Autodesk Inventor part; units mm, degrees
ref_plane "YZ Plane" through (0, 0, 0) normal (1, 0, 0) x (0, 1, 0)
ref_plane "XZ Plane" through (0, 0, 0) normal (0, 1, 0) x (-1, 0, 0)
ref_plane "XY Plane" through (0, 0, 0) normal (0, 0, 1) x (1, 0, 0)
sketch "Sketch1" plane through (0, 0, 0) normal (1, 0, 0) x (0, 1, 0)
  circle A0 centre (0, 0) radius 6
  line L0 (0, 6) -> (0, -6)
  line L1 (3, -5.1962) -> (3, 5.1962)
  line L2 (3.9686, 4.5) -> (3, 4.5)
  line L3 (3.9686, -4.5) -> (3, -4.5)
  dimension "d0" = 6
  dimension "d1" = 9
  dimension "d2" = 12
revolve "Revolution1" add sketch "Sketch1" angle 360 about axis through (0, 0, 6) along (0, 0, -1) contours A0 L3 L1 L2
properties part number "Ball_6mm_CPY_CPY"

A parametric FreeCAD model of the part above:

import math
import FreeCAD as App
import Part
import Sketcher

V = App.Vector

doc = App.newDocument("Part")
params = doc.addObject("Spreadsheet::Sheet", "Params")
for row, (alias, value) in enumerate([
    ("sketch1_radius", "6 mm"),
    ("sketch1_height", "9 mm"),
    ("revolution_angle", "360 deg"),
], start=1):
    params.set(f"A{row}", alias)
    params.set(f"B{row}", "=" + value)
    params.setAlias(f"B{row}", alias)

body = doc.addObject("PartDesign::Body", "Body")

sketch1 = body.newObject("Sketcher::SketchObject", "Sketch")
sketch1.AttachmentSupport = (doc.getObject("YZ_Plane"), [""])
sketch1.MapMode = "FlatFace"
sketch1.addGeometry([
    Part.ArcOfCircle(Part.Circle(V(0, 0, 0), V(0, 0, 1), 6), math.radians(-49), math.radians(49)),
    Part.LineSegment(V(4, 4.5, 0), V(3, 4.5, 0)),
    Part.LineSegment(V(3, 4.5, 0), V(3, -4.5, 0)),
    Part.LineSegment(V(3, -4.5, 0), V(4, -4.5, 0)),
], False)
sketch1.addConstraint([
    Sketcher.Constraint("Coincident", 0, 2, 1, 1),
    Sketcher.Constraint("Coincident", 1, 2, 2, 1),
    Sketcher.Constraint("Coincident", 2, 2, 3, 1),
    Sketcher.Constraint("Coincident", 3, 2, 0, 1),
    Sketcher.Constraint("Horizontal", 1),
    Sketcher.Constraint("Vertical", 2),
    Sketcher.Constraint("Horizontal", 3),
    Sketcher.Constraint("Coincident", 0, 3, -1, 1),
    Sketcher.Constraint("Vertical", 0, 2, 3, 2),
    Sketcher.Constraint("Radius", 0, 6.0),
    Sketcher.Constraint("DistanceY", 2, 2, 2, 1, 9.0),
    Sketcher.Constraint("DistanceX", -1, 1, 1, 2, 3.0),
])
sketch1.setExpression("Constraints[9]", "Params.sketch1_radius")
sketch1.setExpression("Constraints[10]", "Params.sketch1_height")
revolution = body.newObject("PartDesign::Revolution", "Revolution")
revolution.Profile = sketch1
revolution.ReferenceAxis = (sketch1, ["V_Axis"])
revolution.setExpression("Angle", "Params.revolution_angle")

doc.recompute()
